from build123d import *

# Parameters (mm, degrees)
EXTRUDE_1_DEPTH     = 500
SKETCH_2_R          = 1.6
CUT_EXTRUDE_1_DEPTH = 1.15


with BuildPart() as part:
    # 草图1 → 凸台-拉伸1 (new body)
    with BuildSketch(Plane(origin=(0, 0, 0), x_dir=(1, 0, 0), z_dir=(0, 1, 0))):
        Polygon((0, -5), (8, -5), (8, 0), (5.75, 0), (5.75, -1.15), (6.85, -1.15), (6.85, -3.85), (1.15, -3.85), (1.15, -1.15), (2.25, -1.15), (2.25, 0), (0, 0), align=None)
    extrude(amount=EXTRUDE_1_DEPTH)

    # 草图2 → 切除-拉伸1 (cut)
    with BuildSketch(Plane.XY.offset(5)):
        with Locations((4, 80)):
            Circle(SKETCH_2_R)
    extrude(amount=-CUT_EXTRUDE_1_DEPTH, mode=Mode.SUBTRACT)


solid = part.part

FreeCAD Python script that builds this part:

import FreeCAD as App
import Part
import Sketcher

V = App.Vector
Q = App.Units.Quantity

doc = App.newDocument("Part")
body = doc.addObject("PartDesign::Body", "Body")

sketch1 = body.newObject("Sketcher::SketchObject", "Sketch")
sketch1.AttachmentSupport = (doc.getObject("XZ_Plane"), [""])
sketch1.MapMode = "FlatFace"
sketch1.addGeometry([
    Part.LineSegment(V(0, 5, 0), V(8, 5, 0)),
    Part.LineSegment(V(8, 5, 0), V(8, 0, 0)),
    Part.LineSegment(V(8, 0, 0), V(5.8, 0, 0)),
    Part.LineSegment(V(5.8, 0, 0), V(5.8, 1.1, 0)),
    Part.LineSegment(V(5.8, 1.1, 0), V(6.8, 1.1, 0)),
    Part.LineSegment(V(6.8, 1.1, 0), V(6.8, 3.9, 0)),
    Part.LineSegment(V(6.8, 3.9, 0), V(1.1, 3.9, 0)),
    Part.LineSegment(V(1.1, 3.9, 0), V(1.1, 1.1, 0)),
    Part.LineSegment(V(1.1, 1.1, 0), V(2.2, 1.1, 0)),
    Part.LineSegment(V(2.2, 1.1, 0), V(2.2, 0, 0)),
    Part.LineSegment(V(2.2, 0, 0), V(0, 0, 0)),
    Part.LineSegment(V(0, 0, 0), V(0, 5, 0)),
], False)
sketch1.addConstraint([
    Sketcher.Constraint("Coincident", 0, 2, 1, 1),
    Sketcher.Constraint("Coincident", 1, 2, 2, 1),
    Sketcher.Constraint("Coincident", 2, 2, 3, 1),
    Sketcher.Constraint("Coincident", 3, 2, 4, 1),
    Sketcher.Constraint("Coincident", 4, 2, 5, 1),
    Sketcher.Constraint("Coincident", 5, 2, 6, 1),
    Sketcher.Constraint("Coincident", 6, 2, 7, 1),
    Sketcher.Constraint("Coincident", 7, 2, 8, 1),
    Sketcher.Constraint("Coincident", 8, 2, 9, 1),
    Sketcher.Constraint("Coincident", 9, 2, 10, 1),
    Sketcher.Constraint("Coincident", 10, 2, 11, 1),
    Sketcher.Constraint("Coincident", 11, 2, 0, 1),
    Sketcher.Constraint("Horizontal", 0),
    Sketcher.Constraint("Vertical", 1),
    Sketcher.Constraint("Horizontal", 2),
    Sketcher.Constraint("Vertical", 3),
    Sketcher.Constraint("Horizontal", 4),
    Sketcher.Constraint("Vertical", 5),
    Sketcher.Constraint("Horizontal", 6),
    Sketcher.Constraint("Vertical", 7),
    Sketcher.Constraint("Horizontal", 8),
    Sketcher.Constraint("Vertical", 9),
    Sketcher.Constraint("Horizontal", 10),
    Sketcher.Constraint("Vertical", 11),
    Sketcher.Constraint("Coincident", 10, 2, -1, 1),
    Sketcher.Constraint("PointOnObject", 1, 2, -1),
    Sketcher.Constraint("Horizontal", 4, 2, 7, 2),
    Sketcher.Constraint("Equal", 4, 8),
    Sketcher.Constraint("Equal", 2, 10),
    Sketcher.Constraint("DistanceX", 0, 1, 0, 2, Q("8 mm")),
    Sketcher.Constraint("DistanceY", 1, 2, 1, 1, Q("5 mm")),
    Sketcher.Constraint("DistanceX", 4, 1, 4, 2, Q("1.1 mm")),
    Sketcher.Constraint("DistanceX", 6, 2, 6, 1, Q("5.7 mm")),
    Sketcher.Constraint("DistanceY", 5, 1, 5, 2, Q("2.7 mm")),
    Sketcher.Constraint("DistanceY", 3, 1, 3, 2, Q("1.15 mm")),
])
pad1 = body.newObject("PartDesign::Pad", "Pad")
pad1.Profile = sketch1
pad1.Length = 500
pad1.Reversed = True

sketch2 = body.newObject("Sketcher::SketchObject", "Sketch001")
sketch2.AttachmentSupport = (doc.getObject("XY_Plane"), [""])
sketch2.MapMode = "FlatFace"
sketch2.AttachmentOffset = App.Placement(V(0, 0, 5), App.Rotation())
sketch2.addGeometry(Part.Circle(V(4, 80, 0), V(0, 0, 1), 1.6), False)
sketch2.addConstraint([
    Sketcher.Constraint("Diameter", 0, Q("3.2 mm")),
    Sketcher.Constraint("DistanceX", -1, 1, 0, 3, Q("4 mm")),
    Sketcher.Constraint("DistanceY", -1, 1, 0, 3, Q("80 mm")),
])
pocket1 = body.newObject("PartDesign::Pocket", "Pocket")
pocket1.Profile = sketch2
pocket1.Length = 1.15

doc.recompute()
